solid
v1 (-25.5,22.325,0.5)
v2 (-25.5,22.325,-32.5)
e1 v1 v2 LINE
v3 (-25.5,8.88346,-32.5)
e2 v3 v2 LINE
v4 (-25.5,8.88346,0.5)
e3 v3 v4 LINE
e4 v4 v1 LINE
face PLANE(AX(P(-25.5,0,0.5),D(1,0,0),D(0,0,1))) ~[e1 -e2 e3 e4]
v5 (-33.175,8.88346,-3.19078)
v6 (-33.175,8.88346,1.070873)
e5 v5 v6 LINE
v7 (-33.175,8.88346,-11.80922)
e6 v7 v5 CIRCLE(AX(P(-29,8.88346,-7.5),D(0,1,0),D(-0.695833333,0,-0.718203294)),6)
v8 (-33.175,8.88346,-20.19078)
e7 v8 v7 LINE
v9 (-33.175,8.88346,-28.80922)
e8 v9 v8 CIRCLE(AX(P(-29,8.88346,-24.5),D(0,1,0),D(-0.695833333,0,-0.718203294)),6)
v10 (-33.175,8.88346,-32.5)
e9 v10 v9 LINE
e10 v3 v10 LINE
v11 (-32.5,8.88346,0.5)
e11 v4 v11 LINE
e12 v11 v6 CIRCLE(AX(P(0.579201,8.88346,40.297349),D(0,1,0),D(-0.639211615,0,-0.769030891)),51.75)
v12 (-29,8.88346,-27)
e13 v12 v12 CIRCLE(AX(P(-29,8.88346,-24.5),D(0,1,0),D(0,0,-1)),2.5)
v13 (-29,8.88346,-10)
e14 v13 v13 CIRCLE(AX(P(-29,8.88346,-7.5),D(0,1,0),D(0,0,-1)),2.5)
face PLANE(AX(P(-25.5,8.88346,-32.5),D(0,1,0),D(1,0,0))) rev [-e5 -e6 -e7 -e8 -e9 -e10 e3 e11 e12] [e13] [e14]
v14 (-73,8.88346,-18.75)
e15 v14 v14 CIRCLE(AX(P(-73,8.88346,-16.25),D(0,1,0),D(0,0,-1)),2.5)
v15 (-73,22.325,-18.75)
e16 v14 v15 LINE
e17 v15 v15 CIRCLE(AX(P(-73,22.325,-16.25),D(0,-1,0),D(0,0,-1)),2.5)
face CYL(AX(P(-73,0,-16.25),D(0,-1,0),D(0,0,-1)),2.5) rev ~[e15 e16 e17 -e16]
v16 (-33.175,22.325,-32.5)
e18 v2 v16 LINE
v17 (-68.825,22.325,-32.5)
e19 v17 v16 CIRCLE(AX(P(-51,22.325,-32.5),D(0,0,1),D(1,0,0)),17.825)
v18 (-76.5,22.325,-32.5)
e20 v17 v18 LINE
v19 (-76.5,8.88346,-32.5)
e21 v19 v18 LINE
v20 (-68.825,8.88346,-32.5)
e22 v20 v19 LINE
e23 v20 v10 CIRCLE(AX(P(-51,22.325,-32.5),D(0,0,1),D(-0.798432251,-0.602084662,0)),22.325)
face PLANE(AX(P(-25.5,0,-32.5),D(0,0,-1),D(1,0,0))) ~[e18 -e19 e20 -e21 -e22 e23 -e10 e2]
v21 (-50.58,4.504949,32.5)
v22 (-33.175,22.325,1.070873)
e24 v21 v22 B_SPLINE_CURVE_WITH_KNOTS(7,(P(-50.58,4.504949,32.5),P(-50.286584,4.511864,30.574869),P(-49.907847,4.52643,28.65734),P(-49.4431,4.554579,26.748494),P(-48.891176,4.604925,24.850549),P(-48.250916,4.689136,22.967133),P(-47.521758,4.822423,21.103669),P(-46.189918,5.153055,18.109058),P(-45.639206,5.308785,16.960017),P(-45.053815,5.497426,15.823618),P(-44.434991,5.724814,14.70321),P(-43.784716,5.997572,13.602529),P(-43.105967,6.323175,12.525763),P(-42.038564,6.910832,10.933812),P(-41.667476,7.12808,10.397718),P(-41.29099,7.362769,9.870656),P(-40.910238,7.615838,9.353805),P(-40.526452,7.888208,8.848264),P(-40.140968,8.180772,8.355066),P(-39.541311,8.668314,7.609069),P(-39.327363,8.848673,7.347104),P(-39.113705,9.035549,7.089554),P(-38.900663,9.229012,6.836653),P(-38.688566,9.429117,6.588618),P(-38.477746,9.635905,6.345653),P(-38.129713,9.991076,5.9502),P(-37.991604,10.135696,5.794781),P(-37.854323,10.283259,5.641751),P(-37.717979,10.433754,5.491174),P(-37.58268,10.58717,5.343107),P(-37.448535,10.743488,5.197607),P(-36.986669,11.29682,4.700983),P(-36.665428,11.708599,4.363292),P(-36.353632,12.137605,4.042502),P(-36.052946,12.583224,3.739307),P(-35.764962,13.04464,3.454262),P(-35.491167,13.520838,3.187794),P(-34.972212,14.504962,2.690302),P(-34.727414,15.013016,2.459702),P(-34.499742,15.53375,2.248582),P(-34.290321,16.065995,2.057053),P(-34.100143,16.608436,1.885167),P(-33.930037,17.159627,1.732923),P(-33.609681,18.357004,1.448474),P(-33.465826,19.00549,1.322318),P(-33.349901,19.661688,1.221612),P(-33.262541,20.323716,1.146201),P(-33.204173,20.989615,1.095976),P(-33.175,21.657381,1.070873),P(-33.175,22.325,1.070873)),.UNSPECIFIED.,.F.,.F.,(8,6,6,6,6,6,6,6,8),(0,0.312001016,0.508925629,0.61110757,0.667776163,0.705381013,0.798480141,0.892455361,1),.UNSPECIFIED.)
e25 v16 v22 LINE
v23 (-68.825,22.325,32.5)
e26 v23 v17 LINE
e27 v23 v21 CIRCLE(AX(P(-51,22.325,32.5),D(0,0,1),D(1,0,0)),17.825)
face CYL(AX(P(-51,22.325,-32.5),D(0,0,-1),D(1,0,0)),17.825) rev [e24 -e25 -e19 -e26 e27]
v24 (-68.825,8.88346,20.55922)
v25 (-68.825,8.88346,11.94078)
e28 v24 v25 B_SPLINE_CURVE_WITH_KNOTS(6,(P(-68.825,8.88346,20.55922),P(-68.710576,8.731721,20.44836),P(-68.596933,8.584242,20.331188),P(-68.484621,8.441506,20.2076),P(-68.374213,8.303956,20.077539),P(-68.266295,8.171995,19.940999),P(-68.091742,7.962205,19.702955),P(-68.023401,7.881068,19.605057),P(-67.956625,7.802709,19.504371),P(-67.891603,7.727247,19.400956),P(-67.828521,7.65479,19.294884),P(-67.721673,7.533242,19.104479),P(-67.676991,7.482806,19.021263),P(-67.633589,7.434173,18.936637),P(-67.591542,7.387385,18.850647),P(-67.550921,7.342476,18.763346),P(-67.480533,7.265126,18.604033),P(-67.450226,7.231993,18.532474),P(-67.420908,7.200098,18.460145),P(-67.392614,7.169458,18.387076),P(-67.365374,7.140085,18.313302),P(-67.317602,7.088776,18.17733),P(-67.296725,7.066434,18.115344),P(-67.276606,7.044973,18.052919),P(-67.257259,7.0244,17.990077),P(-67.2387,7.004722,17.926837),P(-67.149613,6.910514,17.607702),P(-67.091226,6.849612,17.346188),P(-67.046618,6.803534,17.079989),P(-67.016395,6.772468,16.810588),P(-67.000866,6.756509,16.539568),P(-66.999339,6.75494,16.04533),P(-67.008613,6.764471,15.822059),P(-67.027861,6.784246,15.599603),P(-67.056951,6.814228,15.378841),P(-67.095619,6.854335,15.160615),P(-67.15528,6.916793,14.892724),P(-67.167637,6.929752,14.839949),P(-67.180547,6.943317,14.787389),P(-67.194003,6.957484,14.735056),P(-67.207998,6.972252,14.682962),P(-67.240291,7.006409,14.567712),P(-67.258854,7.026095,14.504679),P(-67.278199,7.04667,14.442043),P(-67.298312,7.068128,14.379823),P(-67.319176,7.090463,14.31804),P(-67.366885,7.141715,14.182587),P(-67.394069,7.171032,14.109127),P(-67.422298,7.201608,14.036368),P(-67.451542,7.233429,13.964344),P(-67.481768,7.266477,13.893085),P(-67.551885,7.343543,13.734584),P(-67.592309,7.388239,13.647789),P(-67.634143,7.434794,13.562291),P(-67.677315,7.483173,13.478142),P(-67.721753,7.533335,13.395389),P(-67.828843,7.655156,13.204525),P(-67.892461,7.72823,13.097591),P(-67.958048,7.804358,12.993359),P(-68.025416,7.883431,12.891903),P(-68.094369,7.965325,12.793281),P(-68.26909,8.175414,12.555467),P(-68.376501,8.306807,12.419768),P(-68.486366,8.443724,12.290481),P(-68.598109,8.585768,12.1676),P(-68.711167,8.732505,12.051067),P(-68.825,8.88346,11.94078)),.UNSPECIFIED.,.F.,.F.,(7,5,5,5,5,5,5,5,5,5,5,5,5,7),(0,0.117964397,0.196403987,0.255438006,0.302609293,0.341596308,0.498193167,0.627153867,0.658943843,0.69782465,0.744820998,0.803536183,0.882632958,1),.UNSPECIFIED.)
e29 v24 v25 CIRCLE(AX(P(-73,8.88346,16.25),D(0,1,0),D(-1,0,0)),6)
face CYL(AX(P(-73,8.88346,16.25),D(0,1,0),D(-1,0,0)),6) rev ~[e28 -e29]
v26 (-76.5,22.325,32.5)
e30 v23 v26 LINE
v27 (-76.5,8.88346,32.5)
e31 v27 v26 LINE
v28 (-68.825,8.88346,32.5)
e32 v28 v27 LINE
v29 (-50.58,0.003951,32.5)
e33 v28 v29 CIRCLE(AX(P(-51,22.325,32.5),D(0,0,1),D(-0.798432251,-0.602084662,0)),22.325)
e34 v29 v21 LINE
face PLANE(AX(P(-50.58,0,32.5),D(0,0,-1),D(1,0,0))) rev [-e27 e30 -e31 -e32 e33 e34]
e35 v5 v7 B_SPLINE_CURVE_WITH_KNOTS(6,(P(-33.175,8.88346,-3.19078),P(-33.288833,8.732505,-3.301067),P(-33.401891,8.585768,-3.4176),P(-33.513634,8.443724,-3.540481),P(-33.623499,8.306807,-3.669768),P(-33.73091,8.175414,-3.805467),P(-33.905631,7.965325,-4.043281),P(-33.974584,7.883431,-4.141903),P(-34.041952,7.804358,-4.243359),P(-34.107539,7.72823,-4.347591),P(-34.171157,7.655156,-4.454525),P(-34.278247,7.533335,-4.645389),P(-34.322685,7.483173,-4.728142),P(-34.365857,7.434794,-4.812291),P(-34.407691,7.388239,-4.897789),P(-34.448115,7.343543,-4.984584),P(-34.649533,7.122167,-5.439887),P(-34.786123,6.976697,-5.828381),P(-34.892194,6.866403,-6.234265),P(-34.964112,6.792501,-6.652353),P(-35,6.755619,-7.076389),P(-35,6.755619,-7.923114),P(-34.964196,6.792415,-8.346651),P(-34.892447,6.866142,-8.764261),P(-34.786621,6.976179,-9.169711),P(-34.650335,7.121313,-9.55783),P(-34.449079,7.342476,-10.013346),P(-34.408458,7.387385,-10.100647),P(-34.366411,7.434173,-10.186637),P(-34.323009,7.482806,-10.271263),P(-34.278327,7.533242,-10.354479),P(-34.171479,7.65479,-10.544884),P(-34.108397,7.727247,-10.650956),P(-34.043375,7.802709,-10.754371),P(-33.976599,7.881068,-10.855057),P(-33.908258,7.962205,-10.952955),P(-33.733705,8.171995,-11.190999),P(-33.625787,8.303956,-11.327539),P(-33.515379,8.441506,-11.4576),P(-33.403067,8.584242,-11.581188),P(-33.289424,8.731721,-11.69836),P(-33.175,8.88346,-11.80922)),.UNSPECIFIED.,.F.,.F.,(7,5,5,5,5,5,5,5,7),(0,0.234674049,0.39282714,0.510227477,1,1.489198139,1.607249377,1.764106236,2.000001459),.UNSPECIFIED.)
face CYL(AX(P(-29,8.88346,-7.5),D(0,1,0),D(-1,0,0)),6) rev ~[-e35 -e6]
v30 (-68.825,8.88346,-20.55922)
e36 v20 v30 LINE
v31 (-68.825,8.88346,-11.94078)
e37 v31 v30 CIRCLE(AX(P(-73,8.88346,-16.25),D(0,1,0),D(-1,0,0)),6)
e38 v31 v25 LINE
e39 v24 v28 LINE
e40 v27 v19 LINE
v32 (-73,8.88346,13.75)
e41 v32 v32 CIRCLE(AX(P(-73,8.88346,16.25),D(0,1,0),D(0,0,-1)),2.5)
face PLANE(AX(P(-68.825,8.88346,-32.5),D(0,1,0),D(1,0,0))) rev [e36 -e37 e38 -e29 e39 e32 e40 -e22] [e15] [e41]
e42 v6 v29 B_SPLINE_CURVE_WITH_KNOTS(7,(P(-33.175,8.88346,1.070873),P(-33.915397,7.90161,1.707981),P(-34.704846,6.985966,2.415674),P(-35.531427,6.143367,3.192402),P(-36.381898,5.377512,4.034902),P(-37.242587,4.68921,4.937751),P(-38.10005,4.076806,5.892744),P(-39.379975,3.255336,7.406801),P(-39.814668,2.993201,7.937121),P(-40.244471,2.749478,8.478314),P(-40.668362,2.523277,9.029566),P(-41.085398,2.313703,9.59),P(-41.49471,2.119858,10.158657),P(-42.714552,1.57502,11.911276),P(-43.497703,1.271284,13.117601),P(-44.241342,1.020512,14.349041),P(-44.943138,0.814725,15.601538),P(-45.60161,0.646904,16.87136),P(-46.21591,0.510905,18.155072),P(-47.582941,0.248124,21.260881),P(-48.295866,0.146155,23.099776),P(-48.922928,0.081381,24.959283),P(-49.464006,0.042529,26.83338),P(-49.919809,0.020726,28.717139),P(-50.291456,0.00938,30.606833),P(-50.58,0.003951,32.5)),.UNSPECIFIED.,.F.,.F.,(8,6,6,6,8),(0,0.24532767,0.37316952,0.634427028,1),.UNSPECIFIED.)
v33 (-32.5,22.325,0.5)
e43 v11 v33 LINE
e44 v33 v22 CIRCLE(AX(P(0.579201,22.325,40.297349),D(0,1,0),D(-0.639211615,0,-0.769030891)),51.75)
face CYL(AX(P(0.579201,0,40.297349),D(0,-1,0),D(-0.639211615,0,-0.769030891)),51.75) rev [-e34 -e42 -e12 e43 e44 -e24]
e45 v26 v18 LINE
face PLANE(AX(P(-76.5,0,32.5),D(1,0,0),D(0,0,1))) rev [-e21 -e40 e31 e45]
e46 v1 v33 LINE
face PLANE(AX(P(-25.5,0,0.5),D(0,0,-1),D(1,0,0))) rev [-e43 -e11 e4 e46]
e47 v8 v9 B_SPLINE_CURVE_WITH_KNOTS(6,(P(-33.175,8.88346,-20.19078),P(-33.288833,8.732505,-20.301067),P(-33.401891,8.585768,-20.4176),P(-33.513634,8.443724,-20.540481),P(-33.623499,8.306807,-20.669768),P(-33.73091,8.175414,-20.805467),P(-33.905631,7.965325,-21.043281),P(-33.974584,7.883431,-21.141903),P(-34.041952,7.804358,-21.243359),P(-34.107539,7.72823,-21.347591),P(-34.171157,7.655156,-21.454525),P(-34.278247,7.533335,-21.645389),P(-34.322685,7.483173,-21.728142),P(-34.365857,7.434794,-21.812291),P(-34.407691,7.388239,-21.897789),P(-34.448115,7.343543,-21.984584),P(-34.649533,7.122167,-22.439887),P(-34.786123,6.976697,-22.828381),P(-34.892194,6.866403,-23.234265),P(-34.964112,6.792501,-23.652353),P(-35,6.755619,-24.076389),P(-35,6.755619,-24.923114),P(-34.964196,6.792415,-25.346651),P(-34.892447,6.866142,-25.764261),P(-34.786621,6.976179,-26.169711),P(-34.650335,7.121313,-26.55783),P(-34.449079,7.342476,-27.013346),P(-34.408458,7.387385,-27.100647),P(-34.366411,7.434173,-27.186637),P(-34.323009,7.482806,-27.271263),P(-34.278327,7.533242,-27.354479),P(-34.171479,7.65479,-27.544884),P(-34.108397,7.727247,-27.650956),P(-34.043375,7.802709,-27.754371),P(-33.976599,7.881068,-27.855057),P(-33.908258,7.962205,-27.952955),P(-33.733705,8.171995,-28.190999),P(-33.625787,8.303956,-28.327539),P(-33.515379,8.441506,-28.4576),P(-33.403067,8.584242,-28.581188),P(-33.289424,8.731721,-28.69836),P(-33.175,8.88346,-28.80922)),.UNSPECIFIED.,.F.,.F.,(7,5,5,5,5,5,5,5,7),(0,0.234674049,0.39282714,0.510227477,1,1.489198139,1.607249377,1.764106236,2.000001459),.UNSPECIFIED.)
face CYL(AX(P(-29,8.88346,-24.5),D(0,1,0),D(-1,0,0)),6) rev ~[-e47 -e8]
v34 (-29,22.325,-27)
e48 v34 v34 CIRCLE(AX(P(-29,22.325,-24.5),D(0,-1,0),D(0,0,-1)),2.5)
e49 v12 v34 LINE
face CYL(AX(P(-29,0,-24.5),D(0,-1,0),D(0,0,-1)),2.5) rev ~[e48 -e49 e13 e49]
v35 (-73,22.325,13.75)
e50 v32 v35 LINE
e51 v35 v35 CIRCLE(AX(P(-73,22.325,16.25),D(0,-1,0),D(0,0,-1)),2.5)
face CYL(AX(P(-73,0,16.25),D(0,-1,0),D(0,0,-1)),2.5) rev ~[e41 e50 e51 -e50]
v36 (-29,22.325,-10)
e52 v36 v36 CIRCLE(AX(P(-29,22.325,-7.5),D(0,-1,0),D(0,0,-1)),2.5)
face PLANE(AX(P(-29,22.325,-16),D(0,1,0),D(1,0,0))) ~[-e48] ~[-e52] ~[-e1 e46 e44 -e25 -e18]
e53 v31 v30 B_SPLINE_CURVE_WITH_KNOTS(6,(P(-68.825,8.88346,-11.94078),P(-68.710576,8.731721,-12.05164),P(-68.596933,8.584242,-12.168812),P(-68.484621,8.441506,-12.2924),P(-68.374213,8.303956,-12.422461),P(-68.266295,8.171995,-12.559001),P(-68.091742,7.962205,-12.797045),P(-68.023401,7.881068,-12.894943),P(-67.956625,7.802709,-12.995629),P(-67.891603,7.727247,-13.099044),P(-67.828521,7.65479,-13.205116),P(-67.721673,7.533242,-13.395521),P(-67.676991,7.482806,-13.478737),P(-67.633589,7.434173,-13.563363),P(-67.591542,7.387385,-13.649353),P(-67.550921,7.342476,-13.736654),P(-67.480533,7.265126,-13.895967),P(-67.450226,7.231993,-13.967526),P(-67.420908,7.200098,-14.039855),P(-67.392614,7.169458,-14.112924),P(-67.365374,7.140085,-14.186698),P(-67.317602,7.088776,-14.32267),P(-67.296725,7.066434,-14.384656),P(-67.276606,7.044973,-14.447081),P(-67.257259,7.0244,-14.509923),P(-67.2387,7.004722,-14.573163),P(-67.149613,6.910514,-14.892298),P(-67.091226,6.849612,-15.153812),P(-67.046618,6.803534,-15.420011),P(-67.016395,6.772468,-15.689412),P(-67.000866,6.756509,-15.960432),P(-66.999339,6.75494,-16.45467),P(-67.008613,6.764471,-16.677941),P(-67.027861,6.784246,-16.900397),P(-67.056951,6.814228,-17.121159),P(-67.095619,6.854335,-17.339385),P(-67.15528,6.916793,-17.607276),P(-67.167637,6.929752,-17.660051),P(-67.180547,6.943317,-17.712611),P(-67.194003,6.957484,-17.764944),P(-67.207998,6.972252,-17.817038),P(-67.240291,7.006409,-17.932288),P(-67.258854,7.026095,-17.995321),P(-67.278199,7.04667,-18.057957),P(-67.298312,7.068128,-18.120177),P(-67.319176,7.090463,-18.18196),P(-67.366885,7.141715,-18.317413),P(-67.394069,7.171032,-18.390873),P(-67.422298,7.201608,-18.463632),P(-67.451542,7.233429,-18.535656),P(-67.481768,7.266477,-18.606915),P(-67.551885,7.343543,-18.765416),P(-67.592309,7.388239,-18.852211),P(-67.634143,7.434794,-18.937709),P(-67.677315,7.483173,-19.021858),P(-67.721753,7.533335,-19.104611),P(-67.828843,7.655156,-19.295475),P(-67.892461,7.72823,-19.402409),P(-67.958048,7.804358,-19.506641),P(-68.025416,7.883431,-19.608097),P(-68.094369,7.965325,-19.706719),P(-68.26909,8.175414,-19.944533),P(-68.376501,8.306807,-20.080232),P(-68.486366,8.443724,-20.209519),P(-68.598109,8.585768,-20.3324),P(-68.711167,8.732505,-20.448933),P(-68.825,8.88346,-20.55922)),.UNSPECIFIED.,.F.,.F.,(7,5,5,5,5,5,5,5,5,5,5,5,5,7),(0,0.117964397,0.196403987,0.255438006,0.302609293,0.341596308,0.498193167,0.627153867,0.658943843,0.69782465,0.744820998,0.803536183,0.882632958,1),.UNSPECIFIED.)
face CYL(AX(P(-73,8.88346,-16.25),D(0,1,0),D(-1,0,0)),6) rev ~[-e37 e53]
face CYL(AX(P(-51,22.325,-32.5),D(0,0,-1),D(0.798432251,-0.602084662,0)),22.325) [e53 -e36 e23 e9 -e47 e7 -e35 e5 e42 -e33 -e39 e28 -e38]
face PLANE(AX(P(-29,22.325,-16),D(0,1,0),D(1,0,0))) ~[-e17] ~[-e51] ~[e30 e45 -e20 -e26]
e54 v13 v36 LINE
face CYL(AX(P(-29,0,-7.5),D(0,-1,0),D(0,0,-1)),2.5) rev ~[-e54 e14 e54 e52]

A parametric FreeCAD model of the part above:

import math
import FreeCAD as App
import Part
import Sketcher

V = App.Vector

doc = App.newDocument("Part")
body = doc.addObject("PartDesign::Body", "Body")

# Sketch on XZ plane
sketch1 = doc.addObject("Sketcher::SketchObject", "Sketch")
body.addObject(sketch1)
sketch1.AttachmentSupport = (doc.XZ_Plane, [""])
sketch1.MapMode = "FlatFace"
sketch1.addGeometry([
    Part.LineSegment(V(25.5, 32.5, 0), V(25.5, -32.5, 0)),  # 0
    Part.LineSegment(V(25.5, -32.5, 0), V(-25.5, -32.5, 0)),  # 1
    Part.LineSegment(V(-25.5, -32.5, 0), V(-25.5, 0.5, 0)),  # 2
    Part.LineSegment(V(-25.5, 0.5, 0), V(-18.5, 0.5, 0)),  # 3
    Part.ArcOfCircle(Part.Circle(V(-51.6, 40.3, 0), V(0, 0, 1), 51.8), math.radians(-50), math.radians(-9)),  # 4
    Part.LineSegment(V(-0.4, 32.5, 0), V(25.5, 32.5, 0)),  # 5
    Part.Circle(V(22, 16.2, 0), V(0, 0, 1), 2.5),  # 6
    Part.Circle(V(22, -16.2, 0), V(0, 0, 1), 2.5),  # 7
    Part.Circle(V(-22, -24.5, 0), V(0, 0, 1), 2.5),  # 8
    Part.Circle(V(-22, -7.5, 0), V(0, 0, 1), 2.5),  # 9
], False)
sketch1.addConstraint([
    Sketcher.Constraint("Coincident", 0, 2, 1, 1),
    Sketcher.Constraint("Coincident", 1, 2, 2, 1),
    Sketcher.Constraint("Coincident", 2, 2, 3, 1),
    Sketcher.Constraint("Coincident", 3, 2, 4, 1),
    Sketcher.Constraint("Coincident", 4, 2, 5, 1),
    Sketcher.Constraint("Coincident", 5, 2, 0, 1),
    Sketcher.Constraint("Vertical", 0),
    Sketcher.Constraint("Horizontal", 1),
    Sketcher.Constraint("Vertical", 2),
    Sketcher.Constraint("Horizontal", 3),
    Sketcher.Constraint("Horizontal", 5),
    Sketcher.Constraint("Equal", 6, 7),
    Sketcher.Constraint("Equal", 7, 8),
    Sketcher.Constraint("Equal", 8, 9),
    Sketcher.Constraint("Symmetric", 1, 2, 5, 2, -1, 1),
    Sketcher.Constraint("Symmetric", 6, 3, 7, 3, -1),
    Sketcher.Constraint("Vertical", 8, 3, 9, 3),
    Sketcher.Constraint("Diameter", 6, 5.0),
    Sketcher.Constraint("DistanceX", 1, 2, 1, 1, 51.0),
    Sketcher.Constraint("DistanceX", 3, 1, 3, 2, 7.0),
    Sketcher.Constraint("DistanceY", 0, 2, 0, 1, 65.0),
    Sketcher.Constraint("DistanceY", 2, 1, 2, 2, 33.0),
    Sketcher.Constraint("Radius", 4, 51.75),
    Sketcher.Constraint("DistanceX", -1, 1, 6, 3, 22.0),
    Sketcher.Constraint("DistanceX", 8, 3, -1, 1, 22.0),
    Sketcher.Constraint("DistanceY", 8, 3, 9, 3, 17.0),
    Sketcher.Constraint("DistanceY", 0, 2, 8, 3, 8.0),
    Sketcher.Constraint("DistanceX", 5, 1, 5, 2, 25.92),
    Sketcher.Constraint("DistanceY", 7, 3, 6, 3, 32.5),
])
pad1 = doc.addObject("PartDesign::Pad", "Pad")
body.addObject(pad1)
pad1.Profile = sketch1
pad1.Length = 22.325
pad1.Reversed = True

# Sketch on XY plane
sketch2 = doc.addObject("Sketcher::SketchObject", "Sketch001")
body.addObject(sketch2)
sketch2.AttachmentSupport = (doc.XY_Plane, [""])
sketch2.MapMode = "FlatFace"
sketch2.AttachmentOffset = App.Placement(V(0, 0, -32.5), App.Rotation())
sketch2.addGeometry([
    Part.Circle(V(0, 22, 0), V(0, 0, 1), 18),  # 0
    Part.LineSegment(V(18, 9, 0), V(26, 9, 0)),  # 1
    Part.LineSegment(V(26, 9, 0), V(26, -3, 0)),  # 2
    Part.LineSegment(V(26, -3, 0), V(-26, -3, 0)),  # 3
    Part.LineSegment(V(-26, -3, 0), V(-26, 9, 0)),  # 4
    Part.LineSegment(V(-26, 9, 0), V(-18, 9, 0)),  # 5
    Part.ArcOfCircle(Part.Circle(V(0, 22, 0), V(0, 0, 1), 22), math.radians(-143), math.radians(-37)),  # 6
], False)
sketch2.addConstraint([
    Sketcher.Constraint("Coincident", 1, 2, 2, 1),
    Sketcher.Constraint("Coincident", 2, 2, 3, 1),
    Sketcher.Constraint("Coincident", 3, 2, 4, 1),
    Sketcher.Constraint("Coincident", 4, 2, 5, 1),
    Sketcher.Constraint("Coincident", 5, 2, 6, 1),
    Sketcher.Constraint("Coincident", 6, 2, 1, 1),
    Sketcher.Constraint("Horizontal", 1),
    Sketcher.Constraint("Vertical", 2),
    Sketcher.Constraint("Horizontal", 3),
    Sketcher.Constraint("Vertical", 4),
    Sketcher.Constraint("Horizontal", 5),
    Sketcher.Constraint("Coincident", 6, 3, 0, 3),
    Sketcher.Constraint("Symmetric", 1, 2, 4, 2, -2),
    Sketcher.Constraint("PointOnObject", 0, 3, -2),
    Sketcher.Constraint("Diameter", 0, 35.65),
    Sketcher.Constraint("DistanceX", 3, 2, 3, 1, 51.0),
    Sketcher.Constraint("Radius", 6, 22.325),
    Sketcher.Constraint("DistanceX", 1, 1, 1, 2, 7.675),
    Sketcher.Constraint("DistanceY", -1, 1, 0, 3, 22.325),
    Sketcher.Constraint("DistanceY", 2, 2, 2, 1, 11.766891),
])
pocket1 = doc.addObject("PartDesign::Pocket", "Pocket")
body.addObject(pocket1)
pocket1.Profile = sketch2
pocket1.Type = "ThroughAll"
pocket1.Reversed = True

# Sketch on XZ plane
sketch3 = doc.addObject("Sketcher::SketchObject", "Sketch002")
body.addObject(sketch3)
sketch3.AttachmentSupport = (doc.XZ_Plane, [""])
sketch3.MapMode = "FlatFace"
sketch3.AttachmentOffset = App.Placement(V(0, 0, -8.88346), App.Rotation())
sketch3.addGeometry([
    Part.Circle(V(-22, -8, 0), V(0, 0, 1), 6),
    Part.Circle(V(22, -16, 0), V(0, 0, 1), 6),
    Part.Circle(V(22, 16, 0), V(0, 0, 1), 6),
    Part.Circle(V(-22, -24, 0), V(0, 0, 1), 6),
], False)
sketch3.addConstraint([
    Sketcher.Constraint("Equal", 0, 1),
    Sketcher.Constraint("Equal", 1, 2),
    Sketcher.Constraint("Equal", 2, 3),
    Sketcher.Constraint("Symmetric", 1, 3, 2, 3, -1),
    Sketcher.Constraint("Vertical", 0, 3, 3, 3),
    Sketcher.Constraint("Diameter", 0, 12.0),
    Sketcher.Constraint("DistanceX", 0, 3, -1, 1, 22.0),
    Sketcher.Constraint("DistanceX", -1, 1, 1, 3, 22.0),
    Sketcher.Constraint("DistanceY", 3, 3, 0, 3, 17.0),
    Sketcher.Constraint("DistanceY", 0, 3, -1, 1, 7.5),
    Sketcher.Constraint("DistanceY", 1, 3, 2, 3, 32.5),
])
pocket2 = doc.addObject("PartDesign::Pocket", "Pocket001")
body.addObject(pocket2)
pocket2.Profile = sketch3
pocket2.Length = 22.325
pocket2.Reversed = True
body2 = doc.addObject("PartDesign::Body", "Body001")
doc.recompute()

mirroring = doc.addObject("Part::Mirroring", "Mirroring")
mirroring.Source = body
mirroring.Base = V(-25.5, 22.325, 0)
mirroring.Normal = V(-1, 0, 0)
body2.BaseFeature = mirroring
doc.recompute()
body.Visibility = False
mirroring.Visibility = False

doc.recompute()
